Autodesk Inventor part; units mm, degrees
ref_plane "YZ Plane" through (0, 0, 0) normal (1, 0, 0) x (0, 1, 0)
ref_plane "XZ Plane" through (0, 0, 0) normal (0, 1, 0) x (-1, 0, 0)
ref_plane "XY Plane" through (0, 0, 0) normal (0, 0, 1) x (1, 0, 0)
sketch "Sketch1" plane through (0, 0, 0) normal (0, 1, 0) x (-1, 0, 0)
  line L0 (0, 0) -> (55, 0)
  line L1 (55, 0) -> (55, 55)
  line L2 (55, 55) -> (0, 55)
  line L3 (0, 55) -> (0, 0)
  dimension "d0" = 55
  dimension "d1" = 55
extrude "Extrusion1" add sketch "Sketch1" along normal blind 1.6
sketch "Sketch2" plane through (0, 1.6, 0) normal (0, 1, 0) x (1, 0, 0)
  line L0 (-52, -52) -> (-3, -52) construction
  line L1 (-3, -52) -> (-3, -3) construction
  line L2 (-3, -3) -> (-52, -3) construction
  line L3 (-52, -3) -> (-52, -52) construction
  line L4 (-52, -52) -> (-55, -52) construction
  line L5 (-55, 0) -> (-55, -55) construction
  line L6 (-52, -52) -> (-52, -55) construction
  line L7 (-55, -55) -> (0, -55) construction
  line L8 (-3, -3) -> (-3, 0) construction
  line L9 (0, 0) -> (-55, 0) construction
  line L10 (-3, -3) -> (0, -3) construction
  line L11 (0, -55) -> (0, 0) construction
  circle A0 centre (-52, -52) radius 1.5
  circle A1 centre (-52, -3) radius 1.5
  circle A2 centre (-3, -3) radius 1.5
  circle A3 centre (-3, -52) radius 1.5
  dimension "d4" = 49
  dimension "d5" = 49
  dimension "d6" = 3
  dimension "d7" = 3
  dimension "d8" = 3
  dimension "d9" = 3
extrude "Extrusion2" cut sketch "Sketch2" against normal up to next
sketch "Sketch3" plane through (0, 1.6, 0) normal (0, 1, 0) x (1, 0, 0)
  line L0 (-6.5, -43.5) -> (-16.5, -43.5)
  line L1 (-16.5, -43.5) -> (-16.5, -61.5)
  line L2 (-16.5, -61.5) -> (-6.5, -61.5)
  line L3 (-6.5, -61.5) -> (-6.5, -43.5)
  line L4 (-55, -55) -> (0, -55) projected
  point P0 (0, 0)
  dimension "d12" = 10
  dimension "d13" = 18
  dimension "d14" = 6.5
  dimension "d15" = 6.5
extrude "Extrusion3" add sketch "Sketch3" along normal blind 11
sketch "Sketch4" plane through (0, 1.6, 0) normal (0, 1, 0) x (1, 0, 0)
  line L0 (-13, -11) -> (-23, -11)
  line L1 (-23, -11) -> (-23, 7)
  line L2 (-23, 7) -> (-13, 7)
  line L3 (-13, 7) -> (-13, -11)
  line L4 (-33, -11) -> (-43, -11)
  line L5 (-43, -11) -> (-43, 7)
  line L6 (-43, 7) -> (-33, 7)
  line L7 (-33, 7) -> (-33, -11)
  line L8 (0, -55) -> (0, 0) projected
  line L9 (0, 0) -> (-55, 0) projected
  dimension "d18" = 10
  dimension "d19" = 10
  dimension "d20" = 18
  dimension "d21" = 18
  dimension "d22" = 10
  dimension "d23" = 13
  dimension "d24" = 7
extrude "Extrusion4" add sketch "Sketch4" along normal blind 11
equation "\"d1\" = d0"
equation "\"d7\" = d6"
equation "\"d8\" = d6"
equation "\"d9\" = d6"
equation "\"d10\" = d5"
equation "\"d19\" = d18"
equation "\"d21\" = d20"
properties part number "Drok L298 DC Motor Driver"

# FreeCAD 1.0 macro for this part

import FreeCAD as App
import Part
import Sketcher
Q = App.Units.Quantity

doc = App.newDocument("Part")
body = doc.addObject("PartDesign::Body", "Body")

# Sketch on XZ plane
sketch1 = body.newObject("Sketcher::SketchObject", "Sketch")
sketch1.AttachmentSupport = (doc.getObject("XZ_Plane"), [""])
sketch1.MapMode = "FlatFace"
sketch1.addGeometry(Part.LineSegment(App.Vector(0, 55, 0), App.Vector(0, 0, 0)), False)
sketch1.addGeometry(Part.LineSegment(App.Vector(0, 0, 0), App.Vector(-55, 0, 0)), False)
sketch1.addGeometry(Part.LineSegment(App.Vector(-55, 0, 0), App.Vector(-55, 55, 0)), False)
sketch1.addGeometry(Part.LineSegment(App.Vector(-55, 55, 0), App.Vector(0, 55, 0)), False)
sketch1.addConstraint(Sketcher.Constraint("Coincident", 0, 2, 1, 1))
sketch1.addConstraint(Sketcher.Constraint("Coincident", 1, 2, 2, 1))
sketch1.addConstraint(Sketcher.Constraint("Coincident", 2, 2, 3, 1))
sketch1.addConstraint(Sketcher.Constraint("Coincident", 3, 2, 0, 1))
sketch1.addConstraint(Sketcher.Constraint("Vertical", 0))
sketch1.addConstraint(Sketcher.Constraint("Horizontal", 1))
sketch1.addConstraint(Sketcher.Constraint("Vertical", 2))
sketch1.addConstraint(Sketcher.Constraint("Horizontal", 3))
sketch1.addConstraint(Sketcher.Constraint("Coincident", 0, 2, -1, 1))
sketch1.addConstraint(Sketcher.Constraint("Equal", 3, 0))
sketch1.addConstraint(Sketcher.Constraint("DistanceX", 1, 2, 1, 1, Q("55 mm")))
pad1 = body.newObject("PartDesign::Pad", "Pad")
pad1.Profile = sketch1
pad1.Length = 1.6
pad1.Reversed = True

# Sketch on XZ plane
sketch2 = body.newObject("Sketcher::SketchObject", "Sketch001")
sketch2.AttachmentSupport = (doc.getObject("XZ_Plane"), [""])
sketch2.MapMode = "FlatFace"
sketch2.AttachmentOffset = App.Placement(App.Vector(0, 0, -1.6), App.Rotation())
sketch2.addGeometry(Part.Circle(App.Vector(-52, 52, 0), App.Vector(0, 0, 1), 1.5), False)
sketch2.addGeometry(Part.Circle(App.Vector(-52, 3, 0), App.Vector(0, 0, 1), 1.5), False)
sketch2.addGeometry(Part.Circle(App.Vector(-3, 3, 0), App.Vector(0, 0, 1), 1.5), False)
sketch2.addGeometry(Part.Circle(App.Vector(-3, 52, 0), App.Vector(0, 0, 1), 1.5), False)
sketch2.addConstraint(Sketcher.Constraint("Equal", 0, 1))
sketch2.addConstraint(Sketcher.Constraint("Equal", 1, 2))
sketch2.addConstraint(Sketcher.Constraint("Equal", 2, 3))
sketch2.addConstraint(Sketcher.Constraint("Horizontal", 1, 3, 2, 3))
sketch2.addConstraint(Sketcher.Constraint("Horizontal", 0, 3, 3, 3))
sketch2.addConstraint(Sketcher.Constraint("Vertical", 0, 3, 1, 3))
sketch2.addConstraint(Sketcher.Constraint("Vertical", 2, 3, 3, 3))
sketch2.addConstraint(Sketcher.Constraint("Diameter", 0, Q("3 mm")))
sketch2.addConstraint(Sketcher.Constraint("DistanceY", -1, 1, 1, 3, Q("3 mm")))
sketch2.addConstraint(Sketcher.Constraint("DistanceX", 2, 3, -1, 1, Q("3 mm")))
sketch2.addConstraint(Sketcher.Constraint("DistanceY", 1, 3, 0, 3, Q("49 mm")))
sketch2.addConstraint(Sketcher.Constraint("DistanceX", 1, 3, 2, 3, Q("49 mm")))
pocket1 = body.newObject("PartDesign::Pocket", "Pocket")
pocket1.Profile = sketch2
pocket1.Length = 1.6
pocket1.Reversed = True

# Sketch on XZ plane
sketch3 = body.newObject("Sketcher::SketchObject", "Sketch002")
sketch3.AttachmentSupport = (doc.getObject("XZ_Plane"), [""])
sketch3.MapMode = "FlatFace"
sketch3.AttachmentOffset = App.Placement(App.Vector(0, 0, -1.6), App.Rotation())
sketch3.addGeometry(Part.LineSegment(App.Vector(-6, 44, 0), App.Vector(-16, 44, 0)), False)
sketch3.addGeometry(Part.LineSegment(App.Vector(-16, 44, 0), App.Vector(-16, 62, 0)), False)
sketch3.addGeometry(Part.LineSegment(App.Vector(-16, 62, 0), App.Vector(-6, 62, 0)), False)
sketch3.addGeometry(Part.LineSegment(App.Vector(-6, 62, 0), App.Vector(-6, 44, 0)), False)
sketch3.addConstraint(Sketcher.Constraint("Coincident", 0, 2, 1, 1))
sketch3.addConstraint(Sketcher.Constraint("Coincident", 1, 2, 2, 1))
sketch3.addConstraint(Sketcher.Constraint("Coincident", 2, 2, 3, 1))
sketch3.addConstraint(Sketcher.Constraint("Coincident", 3, 2, 0, 1))
sketch3.addConstraint(Sketcher.Constraint("Horizontal", 0))
sketch3.addConstraint(Sketcher.Constraint("Vertical", 1))
sketch3.addConstraint(Sketcher.Constraint("Horizontal", 2))
sketch3.addConstraint(Sketcher.Constraint("Vertical", 3))
sketch3.addConstraint(Sketcher.Constraint("DistanceX", 0, 2, 0, 1, Q("10 mm")))
sketch3.addConstraint(Sketcher.Constraint("DistanceY", 1, 1, 1, 2, Q("18 mm")))
sketch3.addConstraint(Sketcher.Constraint("DistanceX", 2, 2, -1, 1, Q("6.5 mm")))
sketch3.addConstraint(Sketcher.Constraint("DistanceY", -1, 1, 0, 2, Q("43.5 mm")))
pad2 = body.newObject("PartDesign::Pad", "Pad001")
pad2.Profile = sketch3
pad2.Length = 11
pad2.Reversed = True

# Sketch on XZ plane
sketch4 = body.newObject("Sketcher::SketchObject", "Sketch003")
sketch4.AttachmentSupport = (doc.getObject("XZ_Plane"), [""])
sketch4.MapMode = "FlatFace"
sketch4.AttachmentOffset = App.Placement(App.Vector(0, 0, -1.6), App.Rotation())
sketch4.addGeometry(Part.LineSegment(App.Vector(-33, 11, 0), App.Vector(-33, -7, 0)), False)
sketch4.addGeometry(Part.LineSegment(App.Vector(-33, -7, 0), App.Vector(-43, -7, 0)), False)
sketch4.addGeometry(Part.LineSegment(App.Vector(-43, -7, 0), App.Vector(-43, 11, 0)), False)
sketch4.addGeometry(Part.LineSegment(App.Vector(-43, 11, 0), App.Vector(-33, 11, 0)), False)
sketch4.addGeometry(Part.LineSegment(App.Vector(-23, 11, 0), App.Vector(-13, 11, 0)), False)
sketch4.addGeometry(Part.LineSegment(App.Vector(-13, 11, 0), App.Vector(-13, -7, 0)), False)
sketch4.addGeometry(Part.LineSegment(App.Vector(-13, -7, 0), App.Vector(-23, -7, 0)), False)
sketch4.addGeometry(Part.LineSegment(App.Vector(-23, -7, 0), App.Vector(-23, 11, 0)), False)
sketch4.addConstraint(Sketcher.Constraint("Coincident", 0, 2, 1, 1))
sketch4.addConstraint(Sketcher.Constraint("Coincident", 1, 2, 2, 1))
sketch4.addConstraint(Sketcher.Constraint("Coincident", 2, 2, 3, 1))
sketch4.addConstraint(Sketcher.Constraint("Coincident", 3, 2, 0, 1))
sketch4.addConstraint(Sketcher.Constraint("Coincident", 4, 2, 5, 1))
sketch4.addConstraint(Sketcher.Constraint("Coincident", 5, 2, 6, 1))
sketch4.addConstraint(Sketcher.Constraint("Coincident", 6, 2, 7, 1))
sketch4.addConstraint(Sketcher.Constraint("Coincident", 7, 2, 4, 1))
sketch4.addConstraint(Sketcher.Constraint("Vertical", 0))
sketch4.addConstraint(Sketcher.Constraint("Horizontal", 1))
sketch4.addConstraint(Sketcher.Constraint("Vertical", 2))
sketch4.addConstraint(Sketcher.Constraint("Horizontal", 3))
sketch4.addConstraint(Sketcher.Constraint("Horizontal", 4))
sketch4.addConstraint(Sketcher.Constraint("Vertical", 5))
sketch4.addConstraint(Sketcher.Constraint("Horizontal", 6))
sketch4.addConstraint(Sketcher.Constraint("Vertical", 7))
sketch4.addConstraint(Sketcher.Constraint("Horizontal", 3, 2, 4, 2))
sketch4.addConstraint(Sketcher.Constraint("Horizontal", 1, 2, 5, 2))
sketch4.addConstraint(Sketcher.Constraint("Equal", 3, 4))
sketch4.addConstraint(Sketcher.Constraint("DistanceX", 1, 2, 1, 1, Q("10 mm")))
sketch4.addConstraint(Sketcher.Constraint("DistanceY", 0, 2, 0, 1, Q("18 mm")))
sketch4.addConstraint(Sketcher.Constraint("DistanceY", 0, 2, -1, 1, Q("7 mm")))
sketch4.addConstraint(Sketcher.Constraint("DistanceX", 4, 2, -1, 1, Q("13 mm")))
sketch4.addConstraint(Sketcher.Constraint("DistanceX", 0, 2, 6, 2, Q("10 mm")))
pad3 = body.newObject("PartDesign::Pad", "Pad002")
pad3.Profile = sketch4
pad3.Length = 11
pad3.Reversed = True

doc.recompute()
